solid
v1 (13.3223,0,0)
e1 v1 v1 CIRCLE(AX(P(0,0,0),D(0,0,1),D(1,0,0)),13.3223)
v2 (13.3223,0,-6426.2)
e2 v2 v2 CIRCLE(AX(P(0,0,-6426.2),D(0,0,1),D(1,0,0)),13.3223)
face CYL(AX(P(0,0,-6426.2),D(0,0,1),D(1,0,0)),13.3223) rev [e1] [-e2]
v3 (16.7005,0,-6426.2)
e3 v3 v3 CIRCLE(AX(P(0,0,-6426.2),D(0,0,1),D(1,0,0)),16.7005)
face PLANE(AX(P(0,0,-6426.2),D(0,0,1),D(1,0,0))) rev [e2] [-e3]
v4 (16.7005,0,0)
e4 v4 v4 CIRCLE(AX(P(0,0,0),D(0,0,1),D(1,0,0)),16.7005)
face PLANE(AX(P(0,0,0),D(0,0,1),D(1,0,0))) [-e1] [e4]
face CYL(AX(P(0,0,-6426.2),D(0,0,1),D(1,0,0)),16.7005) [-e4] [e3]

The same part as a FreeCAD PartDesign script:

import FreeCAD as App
import Part
import Sketcher

V = App.Vector
Q = App.Units.Quantity

doc = App.newDocument("Part")
body = doc.addObject("PartDesign::Body", "Body")

# Sketch on XY plane
sketch1 = doc.addObject("Sketcher::SketchObject", "Sketch")
body.addObject(sketch1)
sketch1.AttachmentSupport = (doc.XY_Plane, [""])
sketch1.MapMode = "FlatFace"
sketch1.addGeometry(Part.Circle(V(0, 0, 0), V(0, 0, 1), 17), False)
sketch1.addGeometry(Part.Circle(V(0, 0, 0), V(0, 0, 1), 13), False)
sketch1.addConstraint(Sketcher.Constraint("Coincident", 0, 3, -1, 1))
sketch1.addConstraint(Sketcher.Constraint("Coincident", 1, 3, -1, 1))
sketch1.addConstraint(Sketcher.Constraint("Diameter", 0, Q("1.315 in")))
sketch1.addConstraint(Sketcher.Constraint("Diameter", 1, Q("1.049 in")))
pad1 = doc.addObject("PartDesign::Pad", "Pad")
body.addObject(pad1)
pad1.Profile = sketch1
pad1.Length = Q("253 in")
pad1.Reversed = True

doc.recompute()
